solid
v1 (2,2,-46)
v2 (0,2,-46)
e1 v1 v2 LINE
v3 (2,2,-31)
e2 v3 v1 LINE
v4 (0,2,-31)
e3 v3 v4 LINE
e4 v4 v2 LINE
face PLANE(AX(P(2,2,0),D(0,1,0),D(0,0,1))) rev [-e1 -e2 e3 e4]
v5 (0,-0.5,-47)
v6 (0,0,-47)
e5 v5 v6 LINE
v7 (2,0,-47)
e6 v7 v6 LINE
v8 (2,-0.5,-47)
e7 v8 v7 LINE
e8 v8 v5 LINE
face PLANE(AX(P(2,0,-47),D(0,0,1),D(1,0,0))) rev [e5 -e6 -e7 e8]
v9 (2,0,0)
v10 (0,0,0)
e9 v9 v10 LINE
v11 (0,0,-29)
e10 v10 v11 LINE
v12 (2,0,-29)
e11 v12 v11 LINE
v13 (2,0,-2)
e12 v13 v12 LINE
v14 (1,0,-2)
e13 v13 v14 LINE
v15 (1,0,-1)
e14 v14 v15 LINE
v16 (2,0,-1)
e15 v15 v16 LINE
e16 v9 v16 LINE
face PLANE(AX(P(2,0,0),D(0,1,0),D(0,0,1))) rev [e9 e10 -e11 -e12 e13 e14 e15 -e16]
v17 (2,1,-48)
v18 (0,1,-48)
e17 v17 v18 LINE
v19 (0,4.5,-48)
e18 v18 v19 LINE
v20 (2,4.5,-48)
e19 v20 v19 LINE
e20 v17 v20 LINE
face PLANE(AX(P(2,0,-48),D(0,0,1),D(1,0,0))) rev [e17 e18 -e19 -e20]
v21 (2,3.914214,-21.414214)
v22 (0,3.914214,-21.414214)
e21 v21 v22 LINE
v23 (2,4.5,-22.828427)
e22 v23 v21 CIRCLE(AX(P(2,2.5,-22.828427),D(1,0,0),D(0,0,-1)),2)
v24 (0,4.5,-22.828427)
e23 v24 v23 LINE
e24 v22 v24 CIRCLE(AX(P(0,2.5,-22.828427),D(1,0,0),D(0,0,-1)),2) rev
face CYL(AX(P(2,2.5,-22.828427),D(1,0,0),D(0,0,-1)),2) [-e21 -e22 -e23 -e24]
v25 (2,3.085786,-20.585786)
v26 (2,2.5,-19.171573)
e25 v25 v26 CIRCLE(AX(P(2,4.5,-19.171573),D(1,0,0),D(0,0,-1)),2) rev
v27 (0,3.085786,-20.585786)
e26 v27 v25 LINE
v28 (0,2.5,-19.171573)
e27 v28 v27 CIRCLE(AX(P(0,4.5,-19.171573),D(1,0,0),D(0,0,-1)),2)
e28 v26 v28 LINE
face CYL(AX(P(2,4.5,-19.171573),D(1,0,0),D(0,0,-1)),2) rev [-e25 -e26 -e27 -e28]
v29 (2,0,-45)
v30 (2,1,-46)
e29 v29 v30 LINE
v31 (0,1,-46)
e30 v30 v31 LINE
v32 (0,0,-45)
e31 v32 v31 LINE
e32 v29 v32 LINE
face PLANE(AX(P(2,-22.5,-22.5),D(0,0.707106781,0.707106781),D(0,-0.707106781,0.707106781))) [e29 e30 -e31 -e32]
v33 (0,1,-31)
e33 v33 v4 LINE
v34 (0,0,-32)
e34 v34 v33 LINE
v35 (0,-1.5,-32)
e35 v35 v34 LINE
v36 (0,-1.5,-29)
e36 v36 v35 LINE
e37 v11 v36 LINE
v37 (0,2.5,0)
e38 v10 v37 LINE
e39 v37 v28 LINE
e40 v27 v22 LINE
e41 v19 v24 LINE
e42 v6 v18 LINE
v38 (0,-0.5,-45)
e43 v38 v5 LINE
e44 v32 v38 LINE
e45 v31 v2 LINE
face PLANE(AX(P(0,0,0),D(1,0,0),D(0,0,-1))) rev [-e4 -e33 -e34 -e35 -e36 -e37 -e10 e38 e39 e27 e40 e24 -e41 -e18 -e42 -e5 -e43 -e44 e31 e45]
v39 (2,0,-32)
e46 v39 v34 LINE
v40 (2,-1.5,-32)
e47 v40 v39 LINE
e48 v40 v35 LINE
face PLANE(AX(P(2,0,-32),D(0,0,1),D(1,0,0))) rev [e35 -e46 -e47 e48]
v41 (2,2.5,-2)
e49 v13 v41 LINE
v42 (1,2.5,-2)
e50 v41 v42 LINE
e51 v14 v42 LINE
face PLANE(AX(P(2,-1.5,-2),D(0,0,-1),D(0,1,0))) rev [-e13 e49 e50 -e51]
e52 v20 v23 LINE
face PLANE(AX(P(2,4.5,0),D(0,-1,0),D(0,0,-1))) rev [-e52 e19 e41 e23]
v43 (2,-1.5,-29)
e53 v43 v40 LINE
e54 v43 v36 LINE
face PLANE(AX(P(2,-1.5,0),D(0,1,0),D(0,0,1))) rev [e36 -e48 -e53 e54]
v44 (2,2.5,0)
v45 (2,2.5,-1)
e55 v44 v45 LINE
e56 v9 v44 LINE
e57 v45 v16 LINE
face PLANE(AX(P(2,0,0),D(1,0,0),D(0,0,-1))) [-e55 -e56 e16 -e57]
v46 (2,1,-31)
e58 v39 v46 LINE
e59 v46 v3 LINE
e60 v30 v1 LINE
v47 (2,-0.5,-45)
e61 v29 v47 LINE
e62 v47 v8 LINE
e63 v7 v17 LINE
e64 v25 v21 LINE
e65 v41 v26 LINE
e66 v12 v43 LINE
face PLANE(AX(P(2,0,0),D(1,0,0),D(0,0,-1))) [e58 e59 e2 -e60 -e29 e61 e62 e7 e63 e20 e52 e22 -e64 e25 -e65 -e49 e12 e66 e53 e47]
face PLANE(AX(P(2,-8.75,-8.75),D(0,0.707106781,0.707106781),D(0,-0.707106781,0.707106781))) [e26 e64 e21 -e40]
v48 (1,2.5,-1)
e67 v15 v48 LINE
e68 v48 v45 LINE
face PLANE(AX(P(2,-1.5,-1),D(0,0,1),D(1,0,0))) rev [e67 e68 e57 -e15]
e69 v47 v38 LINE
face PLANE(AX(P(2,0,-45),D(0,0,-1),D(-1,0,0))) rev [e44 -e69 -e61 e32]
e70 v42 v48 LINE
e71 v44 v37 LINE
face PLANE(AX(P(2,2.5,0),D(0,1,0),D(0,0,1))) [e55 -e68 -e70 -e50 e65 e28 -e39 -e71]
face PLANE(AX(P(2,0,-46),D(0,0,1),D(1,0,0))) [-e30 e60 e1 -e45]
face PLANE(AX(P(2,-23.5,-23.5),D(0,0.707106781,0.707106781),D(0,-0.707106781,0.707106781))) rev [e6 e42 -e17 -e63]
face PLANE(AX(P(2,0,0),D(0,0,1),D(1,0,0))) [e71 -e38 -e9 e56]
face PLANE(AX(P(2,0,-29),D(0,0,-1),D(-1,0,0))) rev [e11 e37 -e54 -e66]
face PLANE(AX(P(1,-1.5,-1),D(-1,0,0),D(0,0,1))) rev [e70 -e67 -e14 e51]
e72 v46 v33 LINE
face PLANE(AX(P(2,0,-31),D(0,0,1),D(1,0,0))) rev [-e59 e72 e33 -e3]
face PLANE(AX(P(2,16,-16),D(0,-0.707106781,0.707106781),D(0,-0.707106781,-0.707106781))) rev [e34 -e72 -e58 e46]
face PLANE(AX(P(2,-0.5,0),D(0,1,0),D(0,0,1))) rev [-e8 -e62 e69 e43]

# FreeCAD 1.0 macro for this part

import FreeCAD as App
import Part
import Sketcher


def edges_at(feature, points):
    """Names of the edges that pass closest to the given points."""
    edges = feature.Shape.Edges
    near = lambda p: min(range(len(edges)), key=lambda i: edges[i].distToShape(Part.Vertex(*p))[0])
    return sorted({f"Edge{near(p) + 1}" for p in points})

doc = App.newDocument("Part")
params = doc.addObject("Spreadsheet::Sheet", "Params")
for row, (alias, value) in enumerate([
    ("sketch1_width", "1 mm"),
    ("sketch1_height", "26 mm"),
    ("sketch1_height2", "20 mm"),
    ("sketch1_height3", "29 mm"),
    ("sketch1_height4", "3 mm"),
    ("pad1_length", "2 mm"),
    ("fillet_radius", "2 mm"),
    ("sketch2_width", "1 mm"),
], start=1):
    params.set(f"A{row}", alias)
    params.set(f"B{row}", "=" + value)
    params.setAlias(f"B{row}", alias)

body = doc.addObject("PartDesign::Body", "Body")

# Sketch on YZ plane
sketch1 = body.newObject("Sketcher::SketchObject", "Sketch")
sketch1.AttachmentSupport = (doc.getObject("YZ_Plane"), [""])
sketch1.MapMode = "FlatFace"
sketch1.addGeometry(Part.LineSegment(App.Vector(1, -48, 0), App.Vector(4.5, -48, 0)), False)
sketch1.addGeometry(Part.LineSegment(App.Vector(4.5, -48, 0), App.Vector(4.5, -22, 0)), False)
sketch1.addGeometry(Part.LineSegment(App.Vector(4.5, -22, 0), App.Vector(2.5, -20, 0)), False)
sketch1.addGeometry(Part.LineSegment(App.Vector(2.5, -20, 0), App.Vector(2.5, 0, 0)), False)
sketch1.addGeometry(Part.LineSegment(App.Vector(2.5, 0, 0), App.Vector(0, 0, 0)), False)
sketch1.addGeometry(Part.LineSegment(App.Vector(0, 0, 0), App.Vector(0, -29, 0)), False)
sketch1.addGeometry(Part.LineSegment(App.Vector(0, -29, 0), App.Vector(-1.5, -29, 0)), False)
sketch1.addGeometry(Part.LineSegment(App.Vector(-1.5, -29, 0), App.Vector(-1.5, -32, 0)), False)
sketch1.addGeometry(Part.LineSegment(App.Vector(-1.5, -32, 0), App.Vector(0, -32, 0)), False)
sketch1.addGeometry(Part.LineSegment(App.Vector(0, -32, 0), App.Vector(1, -31, 0)), False)
sketch1.addGeometry(Part.LineSegment(App.Vector(1, -31, 0), App.Vector(2, -31, 0)), False)
sketch1.addGeometry(Part.LineSegment(App.Vector(2, -31, 0), App.Vector(2, -46, 0)), False)
sketch1.addGeometry(Part.LineSegment(App.Vector(2, -46, 0), App.Vector(1, -46, 0)), False)
sketch1.addGeometry(Part.LineSegment(App.Vector(1, -46, 0), App.Vector(0, -45, 0)), False)
sketch1.addGeometry(Part.LineSegment(App.Vector(0, -45, 0), App.Vector(-0.5, -45, 0)), False)
sketch1.addGeometry(Part.LineSegment(App.Vector(-0.5, -45, 0), App.Vector(-0.5, -47, 0)), False)
sketch1.addGeometry(Part.LineSegment(App.Vector(-0.5, -47, 0), App.Vector(0, -47, 0)), False)
sketch1.addGeometry(Part.LineSegment(App.Vector(0, -47, 0), App.Vector(1, -48, 0)), False)
sketch1.addConstraint(Sketcher.Constraint("Coincident", 0, 2, 1, 1))
sketch1.addConstraint(Sketcher.Constraint("Coincident", 1, 2, 2, 1))
sketch1.addConstraint(Sketcher.Constraint("Coincident", 2, 2, 3, 1))
sketch1.addConstraint(Sketcher.Constraint("Coincident", 3, 2, 4, 1))
sketch1.addConstraint(Sketcher.Constraint("Coincident", 4, 2, 5, 1))
sketch1.addConstraint(Sketcher.Constraint("Coincident", 5, 2, 6, 1))
sketch1.addConstraint(Sketcher.Constraint("Coincident", 6, 2, 7, 1))
sketch1.addConstraint(Sketcher.Constraint("Coincident", 7, 2, 8, 1))
sketch1.addConstraint(Sketcher.Constraint("Coincident", 8, 2, 9, 1))
sketch1.addConstraint(Sketcher.Constraint("Coincident", 9, 2, 10, 1))
sketch1.addConstraint(Sketcher.Constraint("Coincident", 10, 2, 11, 1))
sketch1.addConstraint(Sketcher.Constraint("Coincident", 11, 2, 12, 1))
sketch1.addConstraint(Sketcher.Constraint("Coincident", 12, 2, 13, 1))
sketch1.addConstraint(Sketcher.Constraint("Coincident", 13, 2, 14, 1))
sketch1.addConstraint(Sketcher.Constraint("Coincident", 14, 2, 15, 1))
sketch1.addConstraint(Sketcher.Constraint("Coincident", 15, 2, 16, 1))
sketch1.addConstraint(Sketcher.Constraint("Coincident", 16, 2, 17, 1))
sketch1.addConstraint(Sketcher.Constraint("Coincident", 17, 2, 0, 1))
sketch1.addConstraint(Sketcher.Constraint("Horizontal", 0))
sketch1.addConstraint(Sketcher.Constraint("Vertical", 1))
sketch1.addConstraint(Sketcher.Constraint("Vertical", 3))
sketch1.addConstraint(Sketcher.Constraint("Horizontal", 4))
sketch1.addConstraint(Sketcher.Constraint("Vertical", 5))
sketch1.addConstraint(Sketcher.Constraint("Horizontal", 6))
sketch1.addConstraint(Sketcher.Constraint("Vertical", 7))
sketch1.addConstraint(Sketcher.Constraint("Horizontal", 8))
sketch1.addConstraint(Sketcher.Constraint("Horizontal", 10))
sketch1.addConstraint(Sketcher.Constraint("Vertical", 11))
sketch1.addConstraint(Sketcher.Constraint("Horizontal", 12))
sketch1.addConstraint(Sketcher.Constraint("Horizontal", 14))
sketch1.addConstraint(Sketcher.Constraint("Vertical", 15))
sketch1.addConstraint(Sketcher.Constraint("Horizontal", 16))
sketch1.addConstraint(Sketcher.Constraint("Coincident", 4, 2, -1, 1))
sketch1.addConstraint(Sketcher.Constraint("PointOnObject", 8, 2, -2))
sketch1.addConstraint(Sketcher.Constraint("PointOnObject", 13, 2, -2))
sketch1.addConstraint(Sketcher.Constraint("PointOnObject", 16, 2, -2))
sketch1.addConstraint(Sketcher.Constraint("Perpendicular", 2, 9))
sketch1.addConstraint(Sketcher.Constraint("Perpendicular", 9, 13))
sketch1.addConstraint(Sketcher.Constraint("Parallel", 13, 17))
sketch1.addConstraint(Sketcher.Constraint("Vertical", 9, 2, 12, 2))
sketch1.addConstraint(Sketcher.Constraint("Vertical", 12, 2, 17, 2))
sketch1.addConstraint(Sketcher.Constraint("Equal", 9, 13))
sketch1.addConstraint(Sketcher.Constraint("DistanceX", 10, 1, 10, 2, 1.0))
sketch1.addConstraint(Sketcher.Constraint("DistanceY", 1, 1, 1, 2, 26.0))
sketch1.addConstraint(Sketcher.Constraint("DistanceY", 3, 1, 3, 2, 20.0))
sketch1.addConstraint(Sketcher.Constraint("DistanceY", 5, 2, 5, 1, 29.0))
sketch1.addConstraint(Sketcher.Constraint("DistanceY", 7, 2, 7, 1, 3.0))
sketch1.addConstraint(Sketcher.Constraint("DistanceY", 11, 2, 11, 1, 15.0))
sketch1.addConstraint(Sketcher.Constraint("DistanceY", 15, 2, 15, 1, 2.0))
sketch1.addConstraint(Sketcher.Constraint("DistanceX", 0, 1, 0, 2, 3.5))
sketch1.addConstraint(Sketcher.Constraint("DistanceX", 4, 2, 4, 1, 2.5))
sketch1.addConstraint(Sketcher.Constraint("DistanceX", 6, 2, 6, 1, 1.5))
sketch1.addConstraint(Sketcher.Constraint("DistanceX", 14, 2, 14, 1, 0.5))
sketch1.setExpression("Constraints[42]", "Params.sketch1_width")
sketch1.setExpression("Constraints[43]", "Params.sketch1_height")
sketch1.setExpression("Constraints[44]", "Params.sketch1_height2")
sketch1.setExpression("Constraints[45]", "Params.sketch1_height3")
sketch1.setExpression("Constraints[46]", "Params.sketch1_height4")
pad1 = body.newObject("PartDesign::Pad", "Pad")
pad1.Profile = sketch1
pad1.setExpression("Length", "Params.pad1_length")
doc.recompute()

fillet = body.newObject("PartDesign::Fillet", "Fillet")
fillet.Base = (pad1, edges_at(pad1, [(1, 2.5, -20), (1, 4.5, -22)]))
fillet.setExpression("Radius", "Params.fillet_radius")

# Sketch on XZ plane
sketch2 = body.newObject("Sketcher::SketchObject", "Sketch001")
sketch2.AttachmentSupport = (doc.getObject("XZ_Plane"), [""])
sketch2.MapMode = "FlatFace"
sketch2.AttachmentOffset = App.Placement(App.Vector(0, 0, -2.5), App.Rotation())
sketch2.addGeometry(Part.LineSegment(App.Vector(1, -2, 0), App.Vector(1, -1, 0)), False)
sketch2.addGeometry(Part.LineSegment(App.Vector(1, -1, 0), App.Vector(2, -1, 0)), False)
sketch2.addGeometry(Part.LineSegment(App.Vector(2, -1, 0), App.Vector(2, -2, 0)), False)
sketch2.addGeometry(Part.LineSegment(App.Vector(2, -2, 0), App.Vector(1, -2, 0)), False)
sketch2.addConstraint(Sketcher.Constraint("Coincident", 0, 2, 1, 1))
sketch2.addConstraint(Sketcher.Constraint("Coincident", 1, 2, 2, 1))
sketch2.addConstraint(Sketcher.Constraint("Coincident", 2, 2, 3, 1))
sketch2.addConstraint(Sketcher.Constraint("Coincident", 3, 2, 0, 1))
sketch2.addConstraint(Sketcher.Constraint("Vertical", 0))
sketch2.addConstraint(Sketcher.Constraint("Horizontal", 1))
sketch2.addConstraint(Sketcher.Constraint("Vertical", 2))
sketch2.addConstraint(Sketcher.Constraint("Horizontal", 3))
sketch2.addConstraint(Sketcher.Constraint("Equal", 3, 0))
sketch2.addConstraint(Sketcher.Constraint("DistanceX", 1, 1, 1, 2, 1.0))
sketch2.addConstraint(Sketcher.Constraint("DistanceX", -1, 1, 0, 2, 1.0))
sketch2.addConstraint(Sketcher.Constraint("DistanceY", 0, 2, -1, 1, 1.0))
sketch2.setExpression("Constraints[9]", "Params.sketch2_width")
pocket1 = body.newObject("PartDesign::Pocket", "Pocket")
pocket1.Profile = sketch2
pocket1.Type = "ThroughAll"
pocket1.Reversed = True

doc.recompute()
